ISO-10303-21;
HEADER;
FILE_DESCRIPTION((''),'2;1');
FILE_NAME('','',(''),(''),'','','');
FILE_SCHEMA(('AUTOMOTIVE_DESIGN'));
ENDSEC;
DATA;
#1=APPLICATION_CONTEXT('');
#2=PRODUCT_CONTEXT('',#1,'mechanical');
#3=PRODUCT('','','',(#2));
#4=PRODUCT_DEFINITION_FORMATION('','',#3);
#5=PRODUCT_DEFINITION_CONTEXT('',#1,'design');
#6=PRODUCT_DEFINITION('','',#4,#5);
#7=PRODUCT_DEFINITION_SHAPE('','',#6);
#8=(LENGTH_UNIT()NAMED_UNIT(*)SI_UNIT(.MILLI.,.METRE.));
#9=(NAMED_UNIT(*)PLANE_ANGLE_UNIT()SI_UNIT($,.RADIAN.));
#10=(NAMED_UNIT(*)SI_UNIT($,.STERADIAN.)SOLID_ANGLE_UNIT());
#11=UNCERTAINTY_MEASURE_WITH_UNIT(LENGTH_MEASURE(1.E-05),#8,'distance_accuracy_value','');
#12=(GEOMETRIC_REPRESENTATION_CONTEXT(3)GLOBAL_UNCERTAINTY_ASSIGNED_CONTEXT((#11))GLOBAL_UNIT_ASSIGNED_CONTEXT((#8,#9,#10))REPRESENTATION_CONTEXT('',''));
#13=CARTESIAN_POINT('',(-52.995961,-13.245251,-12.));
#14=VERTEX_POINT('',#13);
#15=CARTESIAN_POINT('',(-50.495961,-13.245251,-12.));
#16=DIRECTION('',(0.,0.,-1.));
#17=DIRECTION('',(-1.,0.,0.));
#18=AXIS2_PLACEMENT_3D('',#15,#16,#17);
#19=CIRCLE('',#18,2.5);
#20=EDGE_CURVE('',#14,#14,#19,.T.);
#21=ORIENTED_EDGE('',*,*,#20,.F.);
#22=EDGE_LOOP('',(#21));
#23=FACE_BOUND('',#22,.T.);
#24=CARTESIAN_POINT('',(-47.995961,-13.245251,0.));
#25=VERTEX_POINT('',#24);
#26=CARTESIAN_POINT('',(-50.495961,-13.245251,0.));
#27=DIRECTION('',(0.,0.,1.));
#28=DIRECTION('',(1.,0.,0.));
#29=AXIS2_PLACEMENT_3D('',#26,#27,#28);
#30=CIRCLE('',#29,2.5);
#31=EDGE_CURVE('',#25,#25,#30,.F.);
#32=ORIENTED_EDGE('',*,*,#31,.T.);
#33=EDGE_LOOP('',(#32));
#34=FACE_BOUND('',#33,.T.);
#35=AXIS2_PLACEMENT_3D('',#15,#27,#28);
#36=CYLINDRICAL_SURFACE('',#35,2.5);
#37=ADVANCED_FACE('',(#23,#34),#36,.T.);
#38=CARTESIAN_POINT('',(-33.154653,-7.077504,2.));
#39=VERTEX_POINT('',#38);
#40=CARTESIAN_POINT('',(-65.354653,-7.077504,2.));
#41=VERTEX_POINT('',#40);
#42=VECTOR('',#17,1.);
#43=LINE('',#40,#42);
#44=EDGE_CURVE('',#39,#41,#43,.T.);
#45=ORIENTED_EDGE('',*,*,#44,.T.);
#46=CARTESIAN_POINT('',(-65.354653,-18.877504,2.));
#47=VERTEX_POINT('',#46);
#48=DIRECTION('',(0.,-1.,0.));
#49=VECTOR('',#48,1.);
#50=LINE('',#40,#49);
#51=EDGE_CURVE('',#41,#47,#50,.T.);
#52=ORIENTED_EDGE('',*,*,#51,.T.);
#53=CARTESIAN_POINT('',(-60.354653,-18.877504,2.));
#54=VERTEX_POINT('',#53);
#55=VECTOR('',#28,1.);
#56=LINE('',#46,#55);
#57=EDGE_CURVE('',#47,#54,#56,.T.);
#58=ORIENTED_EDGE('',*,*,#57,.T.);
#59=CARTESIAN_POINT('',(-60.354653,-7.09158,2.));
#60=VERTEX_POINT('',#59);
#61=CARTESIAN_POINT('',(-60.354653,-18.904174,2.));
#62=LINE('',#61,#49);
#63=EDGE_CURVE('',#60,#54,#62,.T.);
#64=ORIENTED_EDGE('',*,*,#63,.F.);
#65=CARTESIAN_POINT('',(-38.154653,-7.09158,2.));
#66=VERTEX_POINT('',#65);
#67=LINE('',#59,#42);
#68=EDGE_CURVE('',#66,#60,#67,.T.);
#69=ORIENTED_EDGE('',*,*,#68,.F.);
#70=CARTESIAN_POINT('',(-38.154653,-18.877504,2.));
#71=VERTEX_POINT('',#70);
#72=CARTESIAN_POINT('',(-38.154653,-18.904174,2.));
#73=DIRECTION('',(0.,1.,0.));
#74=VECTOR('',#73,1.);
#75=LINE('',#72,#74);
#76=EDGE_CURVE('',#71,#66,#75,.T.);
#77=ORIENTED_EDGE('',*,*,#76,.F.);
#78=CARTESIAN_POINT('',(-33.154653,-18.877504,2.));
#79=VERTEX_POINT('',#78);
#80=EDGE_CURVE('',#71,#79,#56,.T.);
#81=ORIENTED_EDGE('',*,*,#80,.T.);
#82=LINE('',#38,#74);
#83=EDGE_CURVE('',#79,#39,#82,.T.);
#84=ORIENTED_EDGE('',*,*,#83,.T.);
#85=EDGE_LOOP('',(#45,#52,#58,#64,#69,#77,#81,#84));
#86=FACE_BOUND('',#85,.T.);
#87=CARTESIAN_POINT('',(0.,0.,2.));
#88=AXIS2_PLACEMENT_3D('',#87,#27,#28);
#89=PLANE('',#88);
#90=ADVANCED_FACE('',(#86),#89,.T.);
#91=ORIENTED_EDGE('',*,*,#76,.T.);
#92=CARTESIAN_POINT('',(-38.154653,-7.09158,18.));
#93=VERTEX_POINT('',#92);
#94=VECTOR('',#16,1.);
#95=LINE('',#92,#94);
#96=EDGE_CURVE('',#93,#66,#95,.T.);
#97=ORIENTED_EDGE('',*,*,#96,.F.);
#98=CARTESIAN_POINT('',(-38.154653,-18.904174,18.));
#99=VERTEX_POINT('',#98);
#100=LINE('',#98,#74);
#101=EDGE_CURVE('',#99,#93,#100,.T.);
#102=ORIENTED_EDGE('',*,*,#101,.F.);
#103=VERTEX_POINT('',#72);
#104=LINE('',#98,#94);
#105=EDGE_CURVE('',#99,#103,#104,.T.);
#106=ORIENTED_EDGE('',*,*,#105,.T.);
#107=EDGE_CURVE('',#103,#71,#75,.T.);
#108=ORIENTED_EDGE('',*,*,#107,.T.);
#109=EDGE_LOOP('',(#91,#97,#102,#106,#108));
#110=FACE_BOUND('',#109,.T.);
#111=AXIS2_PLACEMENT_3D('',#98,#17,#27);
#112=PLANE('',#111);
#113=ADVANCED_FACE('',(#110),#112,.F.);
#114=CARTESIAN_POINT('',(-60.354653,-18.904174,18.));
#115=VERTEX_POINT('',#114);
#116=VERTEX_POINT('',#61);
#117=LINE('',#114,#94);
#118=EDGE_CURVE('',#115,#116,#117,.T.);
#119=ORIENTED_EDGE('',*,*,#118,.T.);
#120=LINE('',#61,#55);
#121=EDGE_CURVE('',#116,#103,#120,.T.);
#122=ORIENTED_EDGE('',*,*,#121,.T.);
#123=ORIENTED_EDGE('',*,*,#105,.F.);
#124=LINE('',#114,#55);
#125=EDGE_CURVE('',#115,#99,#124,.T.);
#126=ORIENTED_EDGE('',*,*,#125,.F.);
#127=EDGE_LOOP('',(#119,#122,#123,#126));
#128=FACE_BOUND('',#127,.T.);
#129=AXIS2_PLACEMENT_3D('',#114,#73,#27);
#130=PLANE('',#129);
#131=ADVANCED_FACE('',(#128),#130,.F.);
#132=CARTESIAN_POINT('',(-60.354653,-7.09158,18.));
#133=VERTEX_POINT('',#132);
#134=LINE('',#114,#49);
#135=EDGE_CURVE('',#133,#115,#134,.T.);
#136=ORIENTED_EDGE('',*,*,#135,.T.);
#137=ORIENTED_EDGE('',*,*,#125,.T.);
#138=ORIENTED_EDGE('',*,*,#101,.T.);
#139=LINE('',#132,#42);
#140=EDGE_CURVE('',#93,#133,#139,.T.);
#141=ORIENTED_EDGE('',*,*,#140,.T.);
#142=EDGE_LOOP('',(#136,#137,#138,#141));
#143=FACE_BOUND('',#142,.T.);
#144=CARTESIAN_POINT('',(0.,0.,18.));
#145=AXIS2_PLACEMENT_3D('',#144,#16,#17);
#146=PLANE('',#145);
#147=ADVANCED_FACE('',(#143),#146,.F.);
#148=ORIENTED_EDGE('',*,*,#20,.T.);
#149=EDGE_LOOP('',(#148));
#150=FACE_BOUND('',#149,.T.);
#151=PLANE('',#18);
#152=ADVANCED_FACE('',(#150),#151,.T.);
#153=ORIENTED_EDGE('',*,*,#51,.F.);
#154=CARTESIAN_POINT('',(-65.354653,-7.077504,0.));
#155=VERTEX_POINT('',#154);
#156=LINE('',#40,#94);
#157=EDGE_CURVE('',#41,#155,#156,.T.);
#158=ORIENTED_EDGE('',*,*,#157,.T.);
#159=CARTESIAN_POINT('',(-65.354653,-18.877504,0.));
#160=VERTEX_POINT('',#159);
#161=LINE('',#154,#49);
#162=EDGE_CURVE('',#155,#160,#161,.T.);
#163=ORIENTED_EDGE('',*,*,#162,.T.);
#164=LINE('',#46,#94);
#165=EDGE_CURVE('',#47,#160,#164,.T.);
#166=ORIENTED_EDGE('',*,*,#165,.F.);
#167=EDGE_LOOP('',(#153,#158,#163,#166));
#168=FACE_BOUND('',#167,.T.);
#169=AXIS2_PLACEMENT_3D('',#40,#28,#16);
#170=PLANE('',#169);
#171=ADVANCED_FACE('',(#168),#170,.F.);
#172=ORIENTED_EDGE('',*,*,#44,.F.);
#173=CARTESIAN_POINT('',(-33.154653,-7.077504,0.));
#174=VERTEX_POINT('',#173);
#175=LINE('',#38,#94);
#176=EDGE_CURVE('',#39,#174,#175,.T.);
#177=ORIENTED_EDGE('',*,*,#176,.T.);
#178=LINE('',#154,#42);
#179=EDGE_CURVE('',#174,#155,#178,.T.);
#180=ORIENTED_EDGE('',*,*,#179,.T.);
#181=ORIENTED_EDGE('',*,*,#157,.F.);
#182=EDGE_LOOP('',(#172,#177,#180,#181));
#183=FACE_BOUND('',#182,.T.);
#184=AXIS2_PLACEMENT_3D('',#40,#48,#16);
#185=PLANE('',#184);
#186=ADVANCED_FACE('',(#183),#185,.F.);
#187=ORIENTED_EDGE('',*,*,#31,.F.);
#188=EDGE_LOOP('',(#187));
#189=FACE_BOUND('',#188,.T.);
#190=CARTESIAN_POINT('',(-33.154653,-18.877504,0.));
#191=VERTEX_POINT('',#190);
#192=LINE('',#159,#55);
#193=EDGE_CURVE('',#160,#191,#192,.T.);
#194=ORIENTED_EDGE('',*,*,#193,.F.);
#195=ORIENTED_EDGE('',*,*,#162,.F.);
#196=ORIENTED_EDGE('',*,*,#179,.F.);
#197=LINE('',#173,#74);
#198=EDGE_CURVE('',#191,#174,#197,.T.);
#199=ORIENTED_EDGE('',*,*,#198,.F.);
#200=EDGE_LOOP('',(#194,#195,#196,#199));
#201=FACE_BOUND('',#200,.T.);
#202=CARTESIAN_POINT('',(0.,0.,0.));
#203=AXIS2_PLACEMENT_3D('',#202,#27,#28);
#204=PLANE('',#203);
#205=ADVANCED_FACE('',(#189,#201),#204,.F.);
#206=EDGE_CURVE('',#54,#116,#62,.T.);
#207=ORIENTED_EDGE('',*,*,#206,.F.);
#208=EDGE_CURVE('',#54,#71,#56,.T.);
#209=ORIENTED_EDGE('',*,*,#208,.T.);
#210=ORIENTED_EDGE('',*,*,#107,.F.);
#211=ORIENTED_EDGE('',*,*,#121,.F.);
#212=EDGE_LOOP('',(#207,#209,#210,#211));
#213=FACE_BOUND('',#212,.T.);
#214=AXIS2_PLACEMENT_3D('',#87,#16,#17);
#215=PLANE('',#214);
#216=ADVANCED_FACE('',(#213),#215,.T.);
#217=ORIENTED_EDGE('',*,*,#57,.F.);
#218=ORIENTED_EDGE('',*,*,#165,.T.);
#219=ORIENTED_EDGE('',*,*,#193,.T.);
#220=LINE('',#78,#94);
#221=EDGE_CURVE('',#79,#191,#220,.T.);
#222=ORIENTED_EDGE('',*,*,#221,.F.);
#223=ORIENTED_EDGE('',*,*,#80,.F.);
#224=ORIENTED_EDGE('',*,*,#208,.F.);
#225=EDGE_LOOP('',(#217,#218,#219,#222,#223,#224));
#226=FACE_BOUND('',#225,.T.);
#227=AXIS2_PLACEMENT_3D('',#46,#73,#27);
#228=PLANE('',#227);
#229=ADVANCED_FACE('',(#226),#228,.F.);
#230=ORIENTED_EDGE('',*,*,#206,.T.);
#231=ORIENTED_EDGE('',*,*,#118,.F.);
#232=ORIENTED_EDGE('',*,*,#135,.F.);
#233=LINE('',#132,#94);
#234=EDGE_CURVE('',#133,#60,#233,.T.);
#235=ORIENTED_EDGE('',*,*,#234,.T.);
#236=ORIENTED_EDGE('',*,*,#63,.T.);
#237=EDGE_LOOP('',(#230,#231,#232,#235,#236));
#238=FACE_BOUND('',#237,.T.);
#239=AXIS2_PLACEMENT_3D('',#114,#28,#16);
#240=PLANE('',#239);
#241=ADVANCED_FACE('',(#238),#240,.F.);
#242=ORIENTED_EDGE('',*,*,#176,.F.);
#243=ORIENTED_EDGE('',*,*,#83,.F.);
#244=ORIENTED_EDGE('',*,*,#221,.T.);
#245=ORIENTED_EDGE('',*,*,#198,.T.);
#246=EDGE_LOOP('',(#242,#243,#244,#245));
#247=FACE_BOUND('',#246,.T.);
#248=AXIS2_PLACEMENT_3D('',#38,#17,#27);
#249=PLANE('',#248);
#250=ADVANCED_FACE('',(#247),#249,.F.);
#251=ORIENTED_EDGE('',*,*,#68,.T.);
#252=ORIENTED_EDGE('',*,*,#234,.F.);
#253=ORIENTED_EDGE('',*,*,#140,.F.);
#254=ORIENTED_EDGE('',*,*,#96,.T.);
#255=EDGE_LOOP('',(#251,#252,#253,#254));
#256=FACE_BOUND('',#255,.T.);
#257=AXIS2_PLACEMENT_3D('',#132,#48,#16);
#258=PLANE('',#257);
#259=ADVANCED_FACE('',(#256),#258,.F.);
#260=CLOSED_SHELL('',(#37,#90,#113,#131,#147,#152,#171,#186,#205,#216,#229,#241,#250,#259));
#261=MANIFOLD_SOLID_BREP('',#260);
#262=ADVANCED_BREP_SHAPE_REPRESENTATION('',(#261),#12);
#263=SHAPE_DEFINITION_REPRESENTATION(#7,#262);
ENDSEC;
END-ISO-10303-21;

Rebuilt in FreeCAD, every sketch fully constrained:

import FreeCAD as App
import Part
import Sketcher
Q = App.Units.Quantity

doc = App.newDocument("Part")
body = doc.addObject("PartDesign::Body", "Body")

# Sketch on XY plane
sketch1 = body.newObject("Sketcher::SketchObject", "Sketch")
sketch1.AttachmentSupport = (doc.getObject("XY_Plane"), [""])
sketch1.MapMode = "FlatFace"
sketch1.addGeometry(Part.LineSegment(App.Vector(-65, -7, 0), App.Vector(-65, -19, 0)), False)
sketch1.addGeometry(Part.LineSegment(App.Vector(-65, -19, 0), App.Vector(-33, -19, 0)), False)
sketch1.addGeometry(Part.LineSegment(App.Vector(-33, -19, 0), App.Vector(-33, -7, 0)), False)
sketch1.addGeometry(Part.LineSegment(App.Vector(-33, -7, 0), App.Vector(-65, -7, 0)), False)
sketch1.addConstraint(Sketcher.Constraint("Coincident", 0, 2, 1, 1))
sketch1.addConstraint(Sketcher.Constraint("Coincident", 1, 2, 2, 1))
sketch1.addConstraint(Sketcher.Constraint("Coincident", 2, 2, 3, 1))
sketch1.addConstraint(Sketcher.Constraint("Coincident", 3, 2, 0, 1))
sketch1.addConstraint(Sketcher.Constraint("Vertical", 0))
sketch1.addConstraint(Sketcher.Constraint("Horizontal", 1))
sketch1.addConstraint(Sketcher.Constraint("Vertical", 2))
sketch1.addConstraint(Sketcher.Constraint("Horizontal", 3))
sketch1.addConstraint(Sketcher.Constraint("DistanceX", 1, 1, 1, 2, Q("32.2 mm")))
sketch1.addConstraint(Sketcher.Constraint("DistanceY", 0, 2, 0, 1, Q("11.8 mm")))
sketch1.addConstraint(Sketcher.Constraint("DistanceX", 0, 2, -1, 1, Q("65.354653 mm")))
sketch1.addConstraint(Sketcher.Constraint("DistanceY", 0, 2, -1, 1, Q("18.877504 mm")))
pad1 = body.newObject("PartDesign::Pad", "Pad")
pad1.Profile = sketch1
pad1.Length = 2

# Sketch on XY plane
sketch2 = body.newObject("Sketcher::SketchObject", "Sketch001")
sketch2.AttachmentSupport = (doc.getObject("XY_Plane"), [""])
sketch2.MapMode = "FlatFace"
sketch2.AttachmentOffset = App.Placement(App.Vector(0, 0, 2), App.Rotation())
sketch2.addGeometry(Part.LineSegment(App.Vector(-60, -7, 0), App.Vector(-60, -19, 0)), False)
sketch2.addGeometry(Part.LineSegment(App.Vector(-60, -19, 0), App.Vector(-38, -19, 0)), False)
sketch2.addGeometry(Part.LineSegment(App.Vector(-38, -19, 0), App.Vector(-38, -7, 0)), False)
sketch2.addGeometry(Part.LineSegment(App.Vector(-38, -7, 0), App.Vector(-60, -7, 0)), False)
sketch2.addConstraint(Sketcher.Constraint("Coincident", 0, 2, 1, 1))
sketch2.addConstraint(Sketcher.Constraint("Coincident", 1, 2, 2, 1))
sketch2.addConstraint(Sketcher.Constraint("Coincident", 2, 2, 3, 1))
sketch2.addConstraint(Sketcher.Constraint("Coincident", 3, 2, 0, 1))
sketch2.addConstraint(Sketcher.Constraint("Vertical", 0))
sketch2.addConstraint(Sketcher.Constraint("Horizontal", 1))
sketch2.addConstraint(Sketcher.Constraint("Vertical", 2))
sketch2.addConstraint(Sketcher.Constraint("Horizontal", 3))
sketch2.addConstraint(Sketcher.Constraint("DistanceX", 1, 1, 1, 2, Q("22.2 mm")))
sketch2.addConstraint(Sketcher.Constraint("DistanceY", 0, 2, 0, 1, Q("11.812594 mm")))
sketch2.addConstraint(Sketcher.Constraint("DistanceY", 2, 2, -1, 1, Q("7.09158 mm")))
sketch2.addConstraint(Sketcher.Constraint("DistanceX", 0, 2, -1, 1, Q("60.354653 mm")))
pad2 = body.newObject("PartDesign::Pad", "Pad001")
pad2.Profile = sketch2
pad2.Length = 16

# Sketch on XY plane
sketch3 = body.newObject("Sketcher::SketchObject", "Sketch002")
sketch3.AttachmentSupport = (doc.getObject("XY_Plane"), [""])
sketch3.MapMode = "FlatFace"
sketch3.addGeometry(Part.Circle(App.Vector(-50.5, -13.2, 0), App.Vector(0, 0, 1), 2.5), False)
sketch3.addConstraint(Sketcher.Constraint("Diameter", 0, Q("5 mm")))
sketch3.addConstraint(Sketcher.Constraint("DistanceX", 0, 3, -1, 1, Q("50.495961 mm")))
sketch3.addConstraint(Sketcher.Constraint("DistanceY", 0, 3, -1, 1, Q("13.245251 mm")))
pad3 = body.newObject("PartDesign::Pad", "Pad002")
pad3.Profile = sketch3
pad3.Length = 12
pad3.Reversed = True

doc.recompute()
